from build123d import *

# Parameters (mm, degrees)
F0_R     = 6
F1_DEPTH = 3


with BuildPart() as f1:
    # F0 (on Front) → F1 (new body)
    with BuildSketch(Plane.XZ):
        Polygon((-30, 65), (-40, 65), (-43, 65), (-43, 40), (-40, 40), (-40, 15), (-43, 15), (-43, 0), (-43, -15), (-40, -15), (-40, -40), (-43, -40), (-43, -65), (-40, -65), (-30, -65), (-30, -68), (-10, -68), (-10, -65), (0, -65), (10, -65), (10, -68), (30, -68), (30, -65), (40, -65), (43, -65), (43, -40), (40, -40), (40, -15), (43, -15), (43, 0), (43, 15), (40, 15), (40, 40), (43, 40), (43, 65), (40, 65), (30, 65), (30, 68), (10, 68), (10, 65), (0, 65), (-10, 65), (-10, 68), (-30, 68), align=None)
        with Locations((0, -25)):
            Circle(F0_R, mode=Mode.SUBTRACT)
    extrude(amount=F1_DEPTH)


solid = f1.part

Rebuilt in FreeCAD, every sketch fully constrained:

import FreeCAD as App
import Part
import Sketcher
Q = App.Units.Quantity

doc = App.newDocument("Part")
body = doc.addObject("PartDesign::Body", "Body")

# Sketch on XZ plane
sketch1 = doc.addObject("Sketcher::SketchObject", "Sketch")
body.addObject(sketch1)
sketch1.AttachmentSupport = (doc.XZ_Plane, [""])
sketch1.MapMode = "FlatFace"
sketch1.addGeometry([
    Part.LineSegment(App.Vector(-30, 65, 0), App.Vector(-43, 65, 0)),  # 0
    Part.LineSegment(App.Vector(-43, 65, 0), App.Vector(-43, 40, 0)),  # 1
    Part.LineSegment(App.Vector(-43, 40, 0), App.Vector(-40, 40, 0)),  # 2
    Part.LineSegment(App.Vector(-40, 40, 0), App.Vector(-40, 15, 0)),  # 3
    Part.LineSegment(App.Vector(-40, 15, 0), App.Vector(-43, 15, 0)),  # 4
    Part.LineSegment(App.Vector(-43, 15, 0), App.Vector(-43, -15, 0)),  # 5
    Part.LineSegment(App.Vector(-43, -15, 0), App.Vector(-40, -15, 0)),  # 6
    Part.LineSegment(App.Vector(-40, -15, 0), App.Vector(-40, -40, 0)),  # 7
    Part.LineSegment(App.Vector(-40, -40, 0), App.Vector(-43, -40, 0)),  # 8
    Part.LineSegment(App.Vector(-43, -40, 0), App.Vector(-43, -65, 0)),  # 9
    Part.LineSegment(App.Vector(-43, -65, 0), App.Vector(-30, -65, 0)),  # 10
    Part.LineSegment(App.Vector(-30, -65, 0), App.Vector(-30, -68, 0)),  # 11
    Part.LineSegment(App.Vector(-30, -68, 0), App.Vector(-10, -68, 0)),  # 12
    Part.LineSegment(App.Vector(-10, -68, 0), App.Vector(-10, -65, 0)),  # 13
    Part.LineSegment(App.Vector(-10, -65, 0), App.Vector(10, -65, 0)),  # 14
    Part.LineSegment(App.Vector(10, -65, 0), App.Vector(10, -68, 0)),  # 15
    Part.LineSegment(App.Vector(10, -68, 0), App.Vector(30, -68, 0)),  # 16
    Part.LineSegment(App.Vector(30, -68, 0), App.Vector(30, -65, 0)),  # 17
    Part.LineSegment(App.Vector(30, -65, 0), App.Vector(43, -65, 0)),  # 18
    Part.LineSegment(App.Vector(43, -65, 0), App.Vector(43, -40, 0)),  # 19
    Part.LineSegment(App.Vector(43, -40, 0), App.Vector(40, -40, 0)),  # 20
    Part.LineSegment(App.Vector(40, -40, 0), App.Vector(40, -15, 0)),  # 21
    Part.LineSegment(App.Vector(40, -15, 0), App.Vector(43, -15, 0)),  # 22
    Part.LineSegment(App.Vector(43, -15, 0), App.Vector(43, 15, 0)),  # 23
    Part.LineSegment(App.Vector(43, 15, 0), App.Vector(40, 15, 0)),  # 24
    Part.LineSegment(App.Vector(40, 15, 0), App.Vector(40, 40, 0)),  # 25
    Part.LineSegment(App.Vector(40, 40, 0), App.Vector(43, 40, 0)),  # 26
    Part.LineSegment(App.Vector(43, 40, 0), App.Vector(43, 65, 0)),  # 27
    Part.LineSegment(App.Vector(43, 65, 0), App.Vector(30, 65, 0)),  # 28
    Part.LineSegment(App.Vector(30, 65, 0), App.Vector(30, 68, 0)),  # 29
    Part.LineSegment(App.Vector(30, 68, 0), App.Vector(10, 68, 0)),  # 30
    Part.LineSegment(App.Vector(10, 68, 0), App.Vector(10, 65, 0)),  # 31
    Part.LineSegment(App.Vector(10, 65, 0), App.Vector(-10, 65, 0)),  # 32
    Part.LineSegment(App.Vector(-10, 65, 0), App.Vector(-10, 68, 0)),  # 33
    Part.LineSegment(App.Vector(-10, 68, 0), App.Vector(-30, 68, 0)),  # 34
    Part.LineSegment(App.Vector(-30, 68, 0), App.Vector(-30, 65, 0)),  # 35
    Part.Circle(App.Vector(0, -25, 0), App.Vector(0, 0, 1), 6),  # 36
], False)
sketch1.addConstraint([
    Sketcher.Constraint("Coincident", 0, 2, 1, 1),
    Sketcher.Constraint("Coincident", 1, 2, 2, 1),
    Sketcher.Constraint("Coincident", 2, 2, 3, 1),
    Sketcher.Constraint("Coincident", 3, 2, 4, 1),
    Sketcher.Constraint("Coincident", 4, 2, 5, 1),
    Sketcher.Constraint("Coincident", 5, 2, 6, 1),
    Sketcher.Constraint("Coincident", 6, 2, 7, 1),
    Sketcher.Constraint("Coincident", 7, 2, 8, 1),
    Sketcher.Constraint("Coincident", 8, 2, 9, 1),
    Sketcher.Constraint("Coincident", 9, 2, 10, 1),
    Sketcher.Constraint("Coincident", 10, 2, 11, 1),
    Sketcher.Constraint("Coincident", 11, 2, 12, 1),
    Sketcher.Constraint("Coincident", 12, 2, 13, 1),
    Sketcher.Constraint("Coincident", 13, 2, 14, 1),
    Sketcher.Constraint("Coincident", 14, 2, 15, 1),
    Sketcher.Constraint("Coincident", 15, 2, 16, 1),
    Sketcher.Constraint("Coincident", 16, 2, 17, 1),
    Sketcher.Constraint("Coincident", 17, 2, 18, 1),
    Sketcher.Constraint("Coincident", 18, 2, 19, 1),
    Sketcher.Constraint("Coincident", 19, 2, 20, 1),
    Sketcher.Constraint("Coincident", 20, 2, 21, 1),
    Sketcher.Constraint("Coincident", 21, 2, 22, 1),
    Sketcher.Constraint("Coincident", 22, 2, 23, 1),
    Sketcher.Constraint("Coincident", 23, 2, 24, 1),
    Sketcher.Constraint("Coincident", 24, 2, 25, 1),
    Sketcher.Constraint("Coincident", 25, 2, 26, 1),
    Sketcher.Constraint("Coincident", 26, 2, 27, 1),
    Sketcher.Constraint("Coincident", 27, 2, 28, 1),
    Sketcher.Constraint("Coincident", 28, 2, 29, 1),
    Sketcher.Constraint("Coincident", 29, 2, 30, 1),
    Sketcher.Constraint("Coincident", 30, 2, 31, 1),
    Sketcher.Constraint("Coincident", 31, 2, 32, 1),
    Sketcher.Constraint("Coincident", 32, 2, 33, 1),
    Sketcher.Constraint("Coincident", 33, 2, 34, 1),
    Sketcher.Constraint("Coincident", 34, 2, 35, 1),
    Sketcher.Constraint("Coincident", 35, 2, 0, 1),
    Sketcher.Constraint("Horizontal", 0),
    Sketcher.Constraint("Vertical", 1),
    Sketcher.Constraint("Horizontal", 2),
    Sketcher.Constraint("Vertical", 3),
    Sketcher.Constraint("Horizontal", 4),
    Sketcher.Constraint("Vertical", 5),
    Sketcher.Constraint("Horizontal", 6),
    Sketcher.Constraint("Vertical", 7),
    Sketcher.Constraint("Horizontal", 8),
    Sketcher.Constraint("Vertical", 9),
    Sketcher.Constraint("Horizontal", 10),
    Sketcher.Constraint("Vertical", 11),
    Sketcher.Constraint("Horizontal", 12),
    Sketcher.Constraint("Vertical", 13),
    Sketcher.Constraint("Horizontal", 14),
    Sketcher.Constraint("Vertical", 15),
    Sketcher.Constraint("Horizontal", 16),
    Sketcher.Constraint("Vertical", 17),
    Sketcher.Constraint("Horizontal", 18),
    Sketcher.Constraint("Vertical", 19),
    Sketcher.Constraint("Horizontal", 20),
    Sketcher.Constraint("Vertical", 21),
    Sketcher.Constraint("Horizontal", 22),
    Sketcher.Constraint("Vertical", 23),
    Sketcher.Constraint("Horizontal", 24),
    Sketcher.Constraint("Vertical", 25),
    Sketcher.Constraint("Horizontal", 26),
    Sketcher.Constraint("Vertical", 27),
    Sketcher.Constraint("Horizontal", 28),
    Sketcher.Constraint("Vertical", 29),
    Sketcher.Constraint("Horizontal", 30),
    Sketcher.Constraint("Vertical", 31),
    Sketcher.Constraint("Horizontal", 32),
    Sketcher.Constraint("Vertical", 33),
    Sketcher.Constraint("Horizontal", 34),
    Sketcher.Constraint("Vertical", 35),
    Sketcher.Constraint("Symmetric", 0, 2, 18, 2, -1, 1),
    Sketcher.Constraint("Symmetric", 2, 2, 20, 2, -1, 1),
    Sketcher.Constraint("Symmetric", 4, 2, 22, 2, -1, 1),
    Sketcher.Constraint("Symmetric", 6, 2, 24, 2, -1, 1),
    Sketcher.Constraint("Symmetric", 8, 2, 26, 2, -1, 1),
    Sketcher.Constraint("Symmetric", 10, 2, 28, 2, -1, 1),
    Sketcher.Constraint("Symmetric", 12, 2, 30, 2, -1, 1),
    Sketcher.Constraint("Symmetric", 14, 2, 32, 2, -1, 1),
    Sketcher.Constraint("Symmetric", 16, 2, 34, 2, -1, 1),
    Sketcher.Constraint("Symmetric", 12, 2, 15, 2, -2),
    Sketcher.Constraint("Symmetric", 10, 2, 17, 2, -2),
    Sketcher.Constraint("Symmetric", 8, 2, 19, 2, -2),
    Sketcher.Constraint("Symmetric", 6, 2, 21, 2, -2),
    Sketcher.Constraint("PointOnObject", 36, 3, -2),
    Sketcher.Constraint("Horizontal", 10, 2, 13, 2),
    Sketcher.Constraint("Vertical", 1, 2, 4, 2),
    Sketcher.Constraint("Equal", 12, 14),
    Sketcher.Constraint("Equal", 1, 3),
    Sketcher.Constraint("Equal", 26, 11),
    Sketcher.Constraint("Diameter", 36, Q("12 mm")),
    Sketcher.Constraint("DistanceX", 0, 2, 0, 1, Q("13 mm")),
    Sketcher.Constraint("DistanceX", 2, 1, 2, 2, Q("3 mm")),
    Sketcher.Constraint("DistanceX", 12, 1, 12, 2, Q("20 mm")),
    Sketcher.Constraint("DistanceY", 1, 2, 1, 1, Q("25 mm")),
    Sketcher.Constraint("DistanceY", 5, 2, 5, 1, Q("30 mm")),
    Sketcher.Constraint("DistanceY", 36, 3, -1, 1, Q("25 mm")),
])
pad1 = doc.addObject("PartDesign::Pad", "Pad")
body.addObject(pad1)
pad1.Profile = sketch1
pad1.Length = 3

doc.recompute()
